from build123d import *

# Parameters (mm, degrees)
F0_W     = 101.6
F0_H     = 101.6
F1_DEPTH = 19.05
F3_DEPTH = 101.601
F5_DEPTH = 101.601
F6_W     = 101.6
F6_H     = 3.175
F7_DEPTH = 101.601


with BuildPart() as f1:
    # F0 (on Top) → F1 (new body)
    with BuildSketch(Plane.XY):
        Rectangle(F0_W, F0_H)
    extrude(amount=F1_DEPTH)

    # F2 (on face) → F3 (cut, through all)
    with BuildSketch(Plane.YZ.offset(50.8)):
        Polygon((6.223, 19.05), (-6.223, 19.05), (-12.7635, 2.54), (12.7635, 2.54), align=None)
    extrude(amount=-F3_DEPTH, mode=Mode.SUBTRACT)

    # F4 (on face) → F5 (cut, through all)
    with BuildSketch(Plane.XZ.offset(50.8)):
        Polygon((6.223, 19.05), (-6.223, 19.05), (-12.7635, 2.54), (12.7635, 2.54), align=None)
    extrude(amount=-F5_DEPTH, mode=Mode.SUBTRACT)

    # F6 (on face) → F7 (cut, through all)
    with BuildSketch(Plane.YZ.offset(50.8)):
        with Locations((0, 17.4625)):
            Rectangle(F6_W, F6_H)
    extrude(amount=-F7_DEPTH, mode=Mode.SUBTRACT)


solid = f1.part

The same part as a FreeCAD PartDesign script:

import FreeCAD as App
import Part
import Sketcher

V = App.Vector
Q = App.Units.Quantity

doc = App.newDocument("Part")
body = doc.addObject("PartDesign::Body", "Body")

sketch1 = doc.addObject("Sketcher::SketchObject", "Sketch")
body.addObject(sketch1)
sketch1.AttachmentSupport = (doc.XY_Plane, [""])
sketch1.MapMode = "FlatFace"
sketch1.addGeometry([
    Part.LineSegment(V(-51, 51, 0), V(-51, -51, 0)),
    Part.LineSegment(V(-51, -51, 0), V(51, -51, 0)),
    Part.LineSegment(V(51, -51, 0), V(51, 51, 0)),
    Part.LineSegment(V(51, 51, 0), V(-51, 51, 0)),
], False)
sketch1.addConstraint([
    Sketcher.Constraint("Coincident", 0, 2, 1, 1),
    Sketcher.Constraint("Coincident", 1, 2, 2, 1),
    Sketcher.Constraint("Coincident", 2, 2, 3, 1),
    Sketcher.Constraint("Coincident", 3, 2, 0, 1),
    Sketcher.Constraint("Vertical", 0),
    Sketcher.Constraint("Horizontal", 1),
    Sketcher.Constraint("Vertical", 2),
    Sketcher.Constraint("Horizontal", 3),
    Sketcher.Constraint("Symmetric", 0, 2, 2, 2, -1, 1),
    Sketcher.Constraint("Equal", 3, 0),
    Sketcher.Constraint("DistanceX", 1, 1, 1, 2, Q("4 in")),
])
pad1 = doc.addObject("PartDesign::Pad", "Pad")
body.addObject(pad1)
pad1.Profile = sketch1
pad1.Length = Q("0.75 in")

sketch2 = doc.addObject("Sketcher::SketchObject", "Sketch001")
body.addObject(sketch2)
sketch2.AttachmentSupport = (doc.YZ_Plane, [""])
sketch2.MapMode = "FlatFace"
sketch2.AttachmentOffset = App.Placement(V(0, 0, 2 * 25.4), App.Rotation())
sketch2.addGeometry([
    Part.LineSegment(V(6, 19, 0), V(-6, 19, 0)),
    Part.LineSegment(V(-6, 19, 0), V(-13, 3, 0)),
    Part.LineSegment(V(-13, 3, 0), V(13, 3, 0)),
    Part.LineSegment(V(13, 3, 0), V(6, 19, 0)),
], False)
sketch2.addConstraint([
    Sketcher.Constraint("Coincident", 0, 2, 1, 1),
    Sketcher.Constraint("Coincident", 1, 2, 2, 1),
    Sketcher.Constraint("Coincident", 2, 2, 3, 1),
    Sketcher.Constraint("Coincident", 3, 2, 0, 1),
    Sketcher.Constraint("Horizontal", 0),
    Sketcher.Constraint("Horizontal", 2),
    Sketcher.Constraint("Equal", 1, 3),
    Sketcher.Constraint("DistanceX", 0, 2, 0, 1, Q("0.49 in")),
    Sketcher.Constraint("DistanceY", -1, 1, 1, 2, Q("0.1 in")),
    Sketcher.Constraint("DistanceX", 2, 1, 2, 2, Q("1.005 in")),
    Sketcher.Constraint("DistanceY", -1, 1, 0, 2, Q("0.75 in")),
    Sketcher.Constraint("DistanceX", 0, 2, -1, 1, Q("0.245 in")),
])
pocket1 = doc.addObject("PartDesign::Pocket", "Pocket")
body.addObject(pocket1)
pocket1.Profile = sketch2
pocket1.Type = "ThroughAll"

sketch3 = doc.addObject("Sketcher::SketchObject", "Sketch002")
body.addObject(sketch3)
sketch3.AttachmentSupport = (doc.XZ_Plane, [""])
sketch3.MapMode = "FlatFace"
sketch3.AttachmentOffset = App.Placement(V(0, 0, 2 * 25.4), App.Rotation())
sketch3.addGeometry([
    Part.LineSegment(V(6, 19, 0), V(-6, 19, 0)),
    Part.LineSegment(V(-6, 19, 0), V(-13, 3, 0)),
    Part.LineSegment(V(-13, 3, 0), V(13, 3, 0)),
    Part.LineSegment(V(13, 3, 0), V(6, 19, 0)),
], False)
sketch3.addConstraint([
    Sketcher.Constraint("Coincident", 0, 2, 1, 1),
    Sketcher.Constraint("Coincident", 1, 2, 2, 1),
    Sketcher.Constraint("Coincident", 2, 2, 3, 1),
    Sketcher.Constraint("Coincident", 3, 2, 0, 1),
    Sketcher.Constraint("Horizontal", 0),
    Sketcher.Constraint("Horizontal", 2),
    Sketcher.Constraint("Equal", 1, 3),
    Sketcher.Constraint("DistanceX", 0, 2, 0, 1, Q("0.49 in")),
    Sketcher.Constraint("DistanceY", -1, 1, 1, 2, Q("0.1 in")),
    Sketcher.Constraint("DistanceX", 2, 1, 2, 2, Q("1.005 in")),
    Sketcher.Constraint("DistanceY", -1, 1, 0, 2, Q("0.75 in")),
    Sketcher.Constraint("DistanceX", 0, 2, -1, 1, Q("0.245 in")),
])
pocket2 = doc.addObject("PartDesign::Pocket", "Pocket001")
body.addObject(pocket2)
pocket2.Profile = sketch3
pocket2.Type = "ThroughAll"

sketch4 = doc.addObject("Sketcher::SketchObject", "Sketch003")
body.addObject(sketch4)
sketch4.AttachmentSupport = (doc.YZ_Plane, [""])
sketch4.MapMode = "FlatFace"
sketch4.AttachmentOffset = App.Placement(V(0, 0, 2 * 25.4), App.Rotation())
sketch4.addGeometry([
    Part.LineSegment(V(-50.8, 19.1, 0), V(-50.8, 15.9, 0)),
    Part.LineSegment(V(-50.8, 15.9, 0), V(50.8, 15.9, 0)),
    Part.LineSegment(V(50.8, 15.9, 0), V(50.8, 19.1, 0)),
    Part.LineSegment(V(50.8, 19.1, 0), V(-50.8, 19.1, 0)),
], False)
sketch4.addConstraint([
    Sketcher.Constraint("Coincident", 0, 2, 1, 1),
    Sketcher.Constraint("Coincident", 1, 2, 2, 1),
    Sketcher.Constraint("Coincident", 2, 2, 3, 1),
    Sketcher.Constraint("Coincident", 3, 2, 0, 1),
    Sketcher.Constraint("Vertical", 0),
    Sketcher.Constraint("Horizontal", 1),
    Sketcher.Constraint("Vertical", 2),
    Sketcher.Constraint("Horizontal", 3),
    Sketcher.Constraint("DistanceX", 1, 1, 1, 2, Q("4 in")),
    Sketcher.Constraint("DistanceX", 0, 2, -1, 1, Q("2 in")),
    Sketcher.Constraint("DistanceY", 0, 2, 0, 1, Q("0.125 in")),
    Sketcher.Constraint("DistanceY", -1, 1, 2, 2, Q("0.75 in")),
])
pocket3 = doc.addObject("PartDesign::Pocket", "Pocket002")
body.addObject(pocket3)
pocket3.Profile = sketch4
pocket3.Type = "ThroughAll"

doc.recompute()
